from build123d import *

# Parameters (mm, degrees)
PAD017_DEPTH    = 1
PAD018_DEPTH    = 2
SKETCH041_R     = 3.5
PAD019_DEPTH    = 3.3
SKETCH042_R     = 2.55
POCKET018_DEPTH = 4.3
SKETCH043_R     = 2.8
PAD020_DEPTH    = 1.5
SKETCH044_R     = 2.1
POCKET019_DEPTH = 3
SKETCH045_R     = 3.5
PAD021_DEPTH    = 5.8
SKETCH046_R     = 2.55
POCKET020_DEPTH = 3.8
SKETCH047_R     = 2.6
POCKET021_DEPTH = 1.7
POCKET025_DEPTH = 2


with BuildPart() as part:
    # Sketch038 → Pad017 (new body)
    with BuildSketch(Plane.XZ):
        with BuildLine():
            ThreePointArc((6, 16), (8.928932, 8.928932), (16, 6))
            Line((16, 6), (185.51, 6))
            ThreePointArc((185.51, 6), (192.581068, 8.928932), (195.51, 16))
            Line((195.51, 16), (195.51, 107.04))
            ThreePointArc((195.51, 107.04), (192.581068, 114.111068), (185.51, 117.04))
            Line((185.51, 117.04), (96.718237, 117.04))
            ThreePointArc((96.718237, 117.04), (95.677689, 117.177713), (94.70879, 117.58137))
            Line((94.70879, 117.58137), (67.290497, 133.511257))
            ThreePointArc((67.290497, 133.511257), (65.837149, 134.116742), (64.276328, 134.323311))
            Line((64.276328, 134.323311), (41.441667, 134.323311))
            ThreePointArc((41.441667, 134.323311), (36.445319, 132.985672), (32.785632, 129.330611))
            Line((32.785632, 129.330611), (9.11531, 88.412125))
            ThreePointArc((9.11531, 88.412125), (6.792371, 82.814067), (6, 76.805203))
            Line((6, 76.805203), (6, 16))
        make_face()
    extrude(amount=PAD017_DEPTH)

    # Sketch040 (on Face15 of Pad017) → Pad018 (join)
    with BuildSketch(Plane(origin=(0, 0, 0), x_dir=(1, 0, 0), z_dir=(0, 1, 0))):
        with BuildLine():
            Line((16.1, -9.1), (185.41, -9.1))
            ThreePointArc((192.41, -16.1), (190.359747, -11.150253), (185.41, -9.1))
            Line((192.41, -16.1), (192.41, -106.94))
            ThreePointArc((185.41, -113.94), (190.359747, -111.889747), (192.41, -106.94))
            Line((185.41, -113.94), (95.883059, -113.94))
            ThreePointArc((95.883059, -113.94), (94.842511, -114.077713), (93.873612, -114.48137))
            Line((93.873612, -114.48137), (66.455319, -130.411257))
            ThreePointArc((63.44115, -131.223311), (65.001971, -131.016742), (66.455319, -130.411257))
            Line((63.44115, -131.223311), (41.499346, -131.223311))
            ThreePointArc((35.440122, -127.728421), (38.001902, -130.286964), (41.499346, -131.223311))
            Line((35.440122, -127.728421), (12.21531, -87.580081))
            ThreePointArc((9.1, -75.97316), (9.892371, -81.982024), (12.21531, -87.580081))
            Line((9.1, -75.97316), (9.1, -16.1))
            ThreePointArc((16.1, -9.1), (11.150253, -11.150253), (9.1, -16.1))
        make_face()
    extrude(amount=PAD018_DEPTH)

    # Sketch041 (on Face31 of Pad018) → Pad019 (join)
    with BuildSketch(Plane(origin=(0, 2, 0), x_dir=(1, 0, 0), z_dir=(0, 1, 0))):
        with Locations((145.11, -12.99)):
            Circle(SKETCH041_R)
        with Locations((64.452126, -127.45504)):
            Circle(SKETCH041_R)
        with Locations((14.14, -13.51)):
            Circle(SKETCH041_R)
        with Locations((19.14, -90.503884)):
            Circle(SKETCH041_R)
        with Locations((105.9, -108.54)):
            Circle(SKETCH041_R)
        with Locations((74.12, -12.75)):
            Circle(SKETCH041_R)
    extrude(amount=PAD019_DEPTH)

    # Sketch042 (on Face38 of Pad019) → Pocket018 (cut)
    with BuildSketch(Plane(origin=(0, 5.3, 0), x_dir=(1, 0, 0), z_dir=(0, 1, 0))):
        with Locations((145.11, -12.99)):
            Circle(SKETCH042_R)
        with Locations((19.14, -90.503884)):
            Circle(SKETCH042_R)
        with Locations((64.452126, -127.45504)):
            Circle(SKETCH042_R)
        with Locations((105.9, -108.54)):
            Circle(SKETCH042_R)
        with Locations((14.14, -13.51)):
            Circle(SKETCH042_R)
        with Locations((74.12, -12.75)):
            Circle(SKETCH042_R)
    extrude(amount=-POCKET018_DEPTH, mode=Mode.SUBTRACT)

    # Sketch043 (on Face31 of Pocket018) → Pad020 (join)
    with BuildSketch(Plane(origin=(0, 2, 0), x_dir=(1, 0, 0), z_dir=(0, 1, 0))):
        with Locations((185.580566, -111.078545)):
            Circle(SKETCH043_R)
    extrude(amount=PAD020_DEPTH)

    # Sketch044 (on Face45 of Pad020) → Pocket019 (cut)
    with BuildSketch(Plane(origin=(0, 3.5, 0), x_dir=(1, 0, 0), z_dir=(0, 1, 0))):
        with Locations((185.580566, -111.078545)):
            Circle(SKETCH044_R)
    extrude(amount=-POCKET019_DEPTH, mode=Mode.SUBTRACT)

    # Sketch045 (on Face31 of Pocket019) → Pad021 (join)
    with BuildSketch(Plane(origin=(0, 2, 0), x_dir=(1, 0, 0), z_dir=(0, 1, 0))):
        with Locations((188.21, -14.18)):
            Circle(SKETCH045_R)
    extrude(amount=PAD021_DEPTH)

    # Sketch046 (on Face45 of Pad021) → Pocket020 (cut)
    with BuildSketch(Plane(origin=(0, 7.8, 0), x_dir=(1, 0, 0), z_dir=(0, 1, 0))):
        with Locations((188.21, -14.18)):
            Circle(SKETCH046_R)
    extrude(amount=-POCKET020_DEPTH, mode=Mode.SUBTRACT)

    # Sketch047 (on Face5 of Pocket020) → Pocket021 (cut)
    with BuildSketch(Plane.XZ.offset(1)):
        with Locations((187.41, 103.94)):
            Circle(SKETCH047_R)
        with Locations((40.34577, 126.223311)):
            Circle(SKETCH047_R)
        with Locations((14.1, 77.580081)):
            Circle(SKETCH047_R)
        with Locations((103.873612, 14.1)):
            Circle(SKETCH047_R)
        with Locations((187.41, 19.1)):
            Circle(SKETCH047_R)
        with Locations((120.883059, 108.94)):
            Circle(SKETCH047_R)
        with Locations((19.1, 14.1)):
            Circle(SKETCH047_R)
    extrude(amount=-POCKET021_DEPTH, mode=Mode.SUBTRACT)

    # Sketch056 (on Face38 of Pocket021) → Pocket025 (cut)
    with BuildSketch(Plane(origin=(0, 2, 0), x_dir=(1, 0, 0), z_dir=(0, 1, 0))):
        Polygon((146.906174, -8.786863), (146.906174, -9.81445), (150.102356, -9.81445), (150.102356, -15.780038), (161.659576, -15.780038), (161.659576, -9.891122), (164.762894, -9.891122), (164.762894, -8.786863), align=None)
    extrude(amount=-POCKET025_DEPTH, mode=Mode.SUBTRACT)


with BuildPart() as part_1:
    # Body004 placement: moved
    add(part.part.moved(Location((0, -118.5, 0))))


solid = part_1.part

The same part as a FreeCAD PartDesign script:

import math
import FreeCAD as App
import Part
import Sketcher
from FreeCAD import Vector

doc = App.newDocument("Part")
body = doc.addObject("PartDesign::Body", "Body")

sketch1 = body.newObject("Sketcher::SketchObject", "Sketch")
sketch1.AttachmentSupport = (doc.getObject("XZ_Plane"), [""])
sketch1.MapMode = "FlatFace"
sketch1.addGeometry(Part.ArcOfCircle(Part.Circle(Vector(16, 16, 0), Vector(0, 0, 1), 10), math.radians(180), math.radians(270)), False)
sketch1.addGeometry(Part.LineSegment(Vector(16, 6, 0), Vector(185.5, 6, 0)), False)
sketch1.addGeometry(Part.ArcOfCircle(Part.Circle(Vector(185.5, 16, 0), Vector(0, 0, 1), 10), math.radians(-90), math.radians(0)), False)
sketch1.addGeometry(Part.LineSegment(Vector(195.5, 16, 0), Vector(195.5, 107, 0)), False)
sketch1.addGeometry(Part.ArcOfCircle(Part.Circle(Vector(185.5, 107, 0), Vector(0, 0, 1), 10), math.radians(0), math.radians(90)), False)
sketch1.addGeometry(Part.LineSegment(Vector(185.5, 117, 0), Vector(96.7, 117, 0)), False)
sketch1.addGeometry(Part.ArcOfCircle(Part.Circle(Vector(96.7, 121, 0), Vector(0, 0, 1), 4), math.radians(-120), math.radians(-90)), False)
sketch1.addGeometry(Part.LineSegment(Vector(94.7, 117.6, 0), Vector(67.3, 133.5, 0)), False)
sketch1.addGeometry(Part.ArcOfCircle(Part.Circle(Vector(64.3, 128.3, 0), Vector(0, 0, 1), 6), math.radians(60), math.radians(90)), False)
sketch1.addGeometry(Part.LineSegment(Vector(64.3, 134.3, 0), Vector(41.4, 134.3, 0)), False)
sketch1.addGeometry(Part.ArcOfCircle(Part.Circle(Vector(41.4, 124.3, 0), Vector(0, 0, 1), 10), math.radians(90), math.radians(150)), False)
sketch1.addGeometry(Part.LineSegment(Vector(32.8, 129.3, 0), Vector(9.1, 88.4, 0)), False)
sketch1.addGeometry(Part.ArcOfCircle(Part.Circle(Vector(29.2, 76.8, 0), Vector(0, 0, 1), 23.2), math.radians(150), math.radians(180)), False)
sketch1.addGeometry(Part.LineSegment(Vector(6, 76.8, 0), Vector(6, 16, 0)), False)
sketch1.addConstraint(Sketcher.Constraint("Tangent", 0, 2, 1, 1))
sketch1.addConstraint(Sketcher.Constraint("Tangent", 1, 2, 2, 1))
sketch1.addConstraint(Sketcher.Constraint("Tangent", 2, 2, 3, 1))
sketch1.addConstraint(Sketcher.Constraint("Tangent", 3, 2, 4, 1))
sketch1.addConstraint(Sketcher.Constraint("Tangent", 4, 2, 5, 1))
sketch1.addConstraint(Sketcher.Constraint("Tangent", 5, 2, 6, 2))
sketch1.addConstraint(Sketcher.Constraint("Tangent", 6, 1, 7, 1))
sketch1.addConstraint(Sketcher.Constraint("Tangent", 7, 2, 8, 1))
sketch1.addConstraint(Sketcher.Constraint("Tangent", 8, 2, 9, 1))
sketch1.addConstraint(Sketcher.Constraint("Tangent", 9, 2, 10, 1))
sketch1.addConstraint(Sketcher.Constraint("Tangent", 10, 2, 11, 1))
sketch1.addConstraint(Sketcher.Constraint("Tangent", 11, 2, 12, 1))
sketch1.addConstraint(Sketcher.Constraint("Tangent", 12, 2, 13, 1))
sketch1.addConstraint(Sketcher.Constraint("Tangent", 13, 2, 0, 1))
sketch1.addConstraint(Sketcher.Constraint("Horizontal", 1))
sketch1.addConstraint(Sketcher.Constraint("Vertical", 3))
sketch1.addConstraint(Sketcher.Constraint("Horizontal", 5))
sketch1.addConstraint(Sketcher.Constraint("Horizontal", 9))
sketch1.addConstraint(Sketcher.Constraint("Vertical", 13))
sketch1.addConstraint(Sketcher.Constraint("Equal", 0, 2))
sketch1.addConstraint(Sketcher.Constraint("Equal", 2, 4))
sketch1.addConstraint(Sketcher.Constraint("Radius", 0, 9.999999))
sketch1.addConstraint(Sketcher.Constraint("Radius", 10, 10.000002))
sketch1.addConstraint(Sketcher.Constraint("DistanceX", -1, 1, 0, 3, 15.999999))
sketch1.addConstraint(Sketcher.Constraint("DistanceY", -1, 1, 0, 3, 15.999999))
sketch1.addConstraint(Sketcher.Constraint("DistanceX", 1, 1, 1, 2, 169.51))
sketch1.addConstraint(Sketcher.Constraint("DistanceY", 3, 1, 3, 2, 91.04))
sketch1.addConstraint(Sketcher.Constraint("Distance", 7, 31.71))
sketch1.addConstraint(Sketcher.Constraint("Radius", 12, 23.18002))
sketch1.addConstraint(Sketcher.Constraint("Radius", 6, 3.999994))
sketch1.addConstraint(Sketcher.Constraint("Radius", 8, 5.999987))
sketch1.addConstraint(Sketcher.Constraint("DistanceX", 9, 2, 9, 1, 22.834661))
sketch1.addConstraint(Sketcher.Constraint("DistanceY", -1, 1, 12, 3, 76.805199))
sketch1.addConstraint(Sketcher.Constraint("DistanceY", 10, 2, 9, 2, 4.9927))
sketch1.addConstraint(Sketcher.Constraint("DistanceY", 11, 2, 8, 3, 39.911199))
pad1 = body.newObject("PartDesign::Pad", "Pad")
pad1.Profile = sketch1
pad1.Length = 1

sketch2 = body.newObject("Sketcher::SketchObject", "Sketch001")
sketch2.AttachmentSupport = (doc.getObject("XZ_Plane"), [""])
sketch2.MapMode = "FlatFace"
sketch2.addGeometry(Part.LineSegment(Vector(185.41, 9.1, 0), Vector(16.1, 9.1, 0)), False)
sketch2.addGeometry(Part.ArcOfCircle(Part.Circle(Vector(16.100002, 16.100002, 0), Vector(0, 0, 1), 7.000002), math.radians(-179.999987), math.radians(-90.000013)), False)
sketch2.addGeometry(Part.LineSegment(Vector(9.1, 16.1, 0), Vector(9.1, 75.97316, 0)), False)
sketch2.addGeometry(Part.ArcOfCircle(Part.Circle(Vector(32.280013, 75.973157, 0), Vector(0, 0, 1), 23.180013), math.radians(149.951701), math.radians(179.999991)), False)
sketch2.addGeometry(Part.LineSegment(Vector(12.21531, 87.580081, 0), Vector(35.440122, 127.728421, 0)), False)
sketch2.addGeometry(Part.ArcOfCircle(Part.Circle(Vector(41.499345, 124.223314, 0), Vector(0, 0, 1), 6.999997), math.radians(89.99999), math.radians(149.951707)), False)
sketch2.addGeometry(Part.LineSegment(Vector(41.499346, 131.223311, 0), Vector(63.44115, 131.223311, 0)), False)
sketch2.addGeometry(Part.ArcOfCircle(Part.Circle(Vector(63.441153, 125.223324, 0), Vector(0, 0, 1), 5.999987), math.radians(59.843604), math.radians(90.000032)), False)
sketch2.addGeometry(Part.LineSegment(Vector(66.455319, 130.411257, 0), Vector(93.873612, 114.48137, 0)), False)
sketch2.addGeometry(Part.ArcOfCircle(Part.Circle(Vector(95.883058, 117.939994, 0), Vector(0, 0, 1), 3.999994), math.radians(-120.156403), math.radians(-89.999982)), False)
sketch2.addGeometry(Part.LineSegment(Vector(95.883059, 113.94, 0), Vector(185.41, 113.94, 0)), False)
sketch2.addGeometry(Part.ArcOfCircle(Part.Circle(Vector(185.409998, 106.939998, 0), Vector(0, 0, 1), 7.000002), math.radians(0.000013), math.radians(89.999987)), False)
sketch2.addGeometry(Part.LineSegment(Vector(192.41, 106.94, 0), Vector(192.41, 16.1, 0)), False)
sketch2.addGeometry(Part.ArcOfCircle(Part.Circle(Vector(185.409998, 16.100002, 0), Vector(0, 0, 1), 7.000002), math.radians(-89.999987), math.radians(-0.000013)), False)
sketch2.addConstraint(Sketcher.Constraint("Coincident", 0, 2, 1, 2))
sketch2.addConstraint(Sketcher.Constraint("Coincident", 1, 1, 2, 1))
sketch2.addConstraint(Sketcher.Constraint("Coincident", 2, 2, 3, 2))
sketch2.addConstraint(Sketcher.Constraint("Coincident", 3, 1, 4, 1))
sketch2.addConstraint(Sketcher.Constraint("Coincident", 4, 2, 5, 2))
sketch2.addConstraint(Sketcher.Constraint("Coincident", 5, 1, 6, 1))
sketch2.addConstraint(Sketcher.Constraint("Coincident", 6, 2, 7, 2))
sketch2.addConstraint(Sketcher.Constraint("Coincident", 7, 1, 8, 1))
sketch2.addConstraint(Sketcher.Constraint("Coincident", 8, 2, 9, 1))
sketch2.addConstraint(Sketcher.Constraint("Coincident", 9, 2, 10, 1))
sketch2.addConstraint(Sketcher.Constraint("Coincident", 10, 2, 11, 2))
sketch2.addConstraint(Sketcher.Constraint("Coincident", 11, 1, 12, 1))
sketch2.addConstraint(Sketcher.Constraint("Coincident", 12, 2, 13, 2))
sketch2.addConstraint(Sketcher.Constraint("Coincident", 13, 1, 0, 1))
sketch2.addConstraint(Sketcher.Constraint("Horizontal", 0))
sketch2.addConstraint(Sketcher.Constraint("Vertical", 2))
sketch2.addConstraint(Sketcher.Constraint("Horizontal", 6))
sketch2.addConstraint(Sketcher.Constraint("Horizontal", 10))
sketch2.addConstraint(Sketcher.Constraint("Vertical", 12))
sketch2.addConstraint(Sketcher.Constraint("Radius", 1, 7.000002))
sketch2.addConstraint(Sketcher.Constraint("Radius", 11, 7.000002))
sketch2.addConstraint(Sketcher.Constraint("Radius", 13, 7.000002))
sketch2.addConstraint(Sketcher.Constraint("DistanceX", 1, 1, 0, 2, 7.0))
sketch2.addConstraint(Sketcher.Constraint("DistanceY", 0, 2, 1, 1, 7.0))
sketch2.addConstraint(Sketcher.Constraint("DistanceX", 10, 2, 11, 1, 7.0))
sketch2.addConstraint(Sketcher.Constraint("DistanceY", 11, 1, 10, 2, 7.0))
sketch2.addConstraint(Sketcher.Constraint("DistanceX", 13, 1, 12, 2, 7.0))
sketch2.addConstraint(Sketcher.Constraint("DistanceY", 13, 1, 12, 2, 7.0))
sketch2.addConstraint(Sketcher.Constraint("DistanceX", 0, 2, 0, 1, 169.31))
sketch2.addConstraint(Sketcher.Constraint("DistanceY", 12, 2, 12, 1, 90.84))
sketch2.addConstraint(Sketcher.Constraint("DistanceX", -1, 1, 1, 3, 16.100002))
sketch2.addConstraint(Sketcher.Constraint("DistanceY", -1, 1, 1, 3, 16.100002))
sketch2.addConstraint(Sketcher.Constraint("Distance", 8, 31.71))
sketch2.addConstraint(Sketcher.Constraint("Radius", 3, 23.180013))
sketch2.addConstraint(Sketcher.Constraint("Radius", 5, 6.999997))
sketch2.addConstraint(Sketcher.Constraint("Radius", 7, 5.999987))
sketch2.addConstraint(Sketcher.Constraint("Radius", 9, 3.999994))
sketch2.addConstraint(Sketcher.Constraint("DistanceX", 10, 1, 10, 2, 89.526941))
sketch2.addConstraint(Sketcher.Constraint("DistanceY", 2, 1, 2, 2, 59.87316))
sketch2.addConstraint(Sketcher.Constraint("DistanceX", 6, 1, 6, 2, 21.941804))
sketch2.addConstraint(Sketcher.Constraint("DistanceX", -1, 1, 3, 1, 12.21531))
sketch2.addConstraint(Sketcher.Constraint("DistanceY", -1, 1, 3, 1, 87.580081))
sketch2.addConstraint(Sketcher.Constraint("DistanceY", -1, 1, 4, 2, 127.728421))
sketch2.addConstraint(Sketcher.Constraint("DistanceY", -1, 1, 5, 1, 131.223311))
sketch2.addConstraint(Sketcher.Constraint("DistanceX", -1, 1, 6, 2, 63.44115))
sketch2.addConstraint(Sketcher.Constraint("DistanceX", -1, 1, 7, 1, 66.455319))
sketch2.addConstraint(Sketcher.Constraint("DistanceX", -1, 1, 8, 2, 93.873612))
sketch2.addConstraint(Sketcher.Constraint("DistanceY", -1, 1, 8, 2, 114.48137))
sketch2.addConstraint(Sketcher.Constraint("DistanceX", 3, 3, 5, 3, 9.219332))
pad2 = body.newObject("PartDesign::Pad", "Pad001")
pad2.Profile = sketch2
pad2.Length = 2
pad2.Reversed = True

sketch3 = body.newObject("Sketcher::SketchObject", "Sketch002")
sketch3.AttachmentSupport = (doc.getObject("XZ_Plane"), [""])
sketch3.MapMode = "FlatFace"
sketch3.AttachmentOffset = App.Placement(Vector(0, 0, -2), App.Rotation())
sketch3.addGeometry(Part.Circle(Vector(145.1, 13, 0), Vector(0, 0, 1), 3.5), False)
sketch3.addGeometry(Part.Circle(Vector(64.5, 127.5, 0), Vector(0, 0, 1), 3.5), False)
sketch3.addGeometry(Part.Circle(Vector(14.1, 13.5, 0), Vector(0, 0, 1), 3.5), False)
sketch3.addGeometry(Part.Circle(Vector(19.1, 90.5, 0), Vector(0, 0, 1), 3.5), False)
sketch3.addGeometry(Part.Circle(Vector(105.9, 108.5, 0), Vector(0, 0, 1), 3.5), False)
sketch3.addGeometry(Part.Circle(Vector(74.1, 12.8, 0), Vector(0, 0, 1), 3.5), False)
sketch3.addConstraint(Sketcher.Constraint("Equal", 0, 1))
sketch3.addConstraint(Sketcher.Constraint("Equal", 1, 2))
sketch3.addConstraint(Sketcher.Constraint("Equal", 2, 3))
sketch3.addConstraint(Sketcher.Constraint("Equal", 3, 4))
sketch3.addConstraint(Sketcher.Constraint("Equal", 4, 5))
sketch3.addConstraint(Sketcher.Constraint("Diameter", 0, 7.0))
sketch3.addConstraint(Sketcher.Constraint("DistanceX", 2, 3, 3, 3, 5.0))
sketch3.addConstraint(Sketcher.Constraint("DistanceX", -1, 1, 4, 3, 105.9))
sketch3.addConstraint(Sketcher.Constraint("DistanceX", -1, 1, 0, 3, 145.11))
sketch3.addConstraint(Sketcher.Constraint("DistanceY", -1, 1, 0, 3, 12.99))
sketch3.addConstraint(Sketcher.Constraint("DistanceX", -1, 1, 2, 3, 14.14))
sketch3.addConstraint(Sketcher.Constraint("DistanceY", -1, 1, 2, 3, 13.51))
sketch3.addConstraint(Sketcher.Constraint("DistanceY", -1, 1, 4, 3, 108.54))
sketch3.addConstraint(Sketcher.Constraint("DistanceX", -1, 1, 5, 3, 74.12))
sketch3.addConstraint(Sketcher.Constraint("DistanceY", -1, 1, 5, 3, 12.75))
sketch3.addConstraint(Sketcher.Constraint("DistanceY", -1, 1, 1, 3, 127.45504))
sketch3.addConstraint(Sketcher.Constraint("DistanceX", -1, 1, 1, 3, 64.452126))
sketch3.addConstraint(Sketcher.Constraint("DistanceY", -1, 1, 3, 3, 90.503884))
pad3 = body.newObject("PartDesign::Pad", "Pad002")
pad3.Profile = sketch3
pad3.Length = 3.3
pad3.Reversed = True

sketch4 = body.newObject("Sketcher::SketchObject", "Sketch003")
sketch4.AttachmentSupport = (doc.getObject("XZ_Plane"), [""])
sketch4.MapMode = "FlatFace"
sketch4.AttachmentOffset = App.Placement(Vector(0, 0, -5.3), App.Rotation())
sketch4.addGeometry(Part.Circle(Vector(145.1, 13, 0), Vector(0, 0, 1), 2.5), False)
sketch4.addGeometry(Part.Circle(Vector(19.1, 90.5, 0), Vector(0, 0, 1), 2.5), False)
sketch4.addGeometry(Part.Circle(Vector(64.5, 127.5, 0), Vector(0, 0, 1), 2.5), False)
sketch4.addGeometry(Part.Circle(Vector(105.9, 108.5, 0), Vector(0, 0, 1), 2.5), False)
sketch4.addGeometry(Part.Circle(Vector(14.1, 13.5, 0), Vector(0, 0, 1), 2.5), False)
sketch4.addGeometry(Part.Circle(Vector(74.1, 12.8, 0), Vector(0, 0, 1), 2.5), False)
sketch4.addConstraint(Sketcher.Constraint("Equal", 0, 1))
sketch4.addConstraint(Sketcher.Constraint("Equal", 1, 2))
sketch4.addConstraint(Sketcher.Constraint("Equal", 2, 3))
sketch4.addConstraint(Sketcher.Constraint("Equal", 3, 4))
sketch4.addConstraint(Sketcher.Constraint("Equal", 4, 5))
sketch4.addConstraint(Sketcher.Constraint("Diameter", 0, 5.1))
sketch4.addConstraint(Sketcher.Constraint("DistanceX", 4, 3, 1, 3, 5.0))
sketch4.addConstraint(Sketcher.Constraint("DistanceX", -1, 1, 3, 3, 105.9))
sketch4.addConstraint(Sketcher.Constraint("DistanceX", -1, 1, 0, 3, 145.11))
sketch4.addConstraint(Sketcher.Constraint("DistanceY", -1, 1, 0, 3, 12.99))
sketch4.addConstraint(Sketcher.Constraint("DistanceX", -1, 1, 1, 3, 19.14))
sketch4.addConstraint(Sketcher.Constraint("DistanceY", -1, 1, 3, 3, 108.54))
sketch4.addConstraint(Sketcher.Constraint("DistanceY", -1, 1, 4, 3, 13.51))
sketch4.addConstraint(Sketcher.Constraint("DistanceX", -1, 1, 5, 3, 74.12))
sketch4.addConstraint(Sketcher.Constraint("DistanceY", -1, 1, 5, 3, 12.75))
sketch4.addConstraint(Sketcher.Constraint("DistanceY", -1, 1, 2, 3, 127.45504))
sketch4.addConstraint(Sketcher.Constraint("DistanceY", -1, 1, 1, 3, 90.503884))
sketch4.addConstraint(Sketcher.Constraint("DistanceX", -1, 1, 2, 3, 64.452126))
pocket1 = body.newObject("PartDesign::Pocket", "Pocket")
pocket1.Profile = sketch4
pocket1.Length = 4.3
pocket1.Reversed = True

sketch5 = body.newObject("Sketcher::SketchObject", "Sketch004")
sketch5.AttachmentSupport = (doc.getObject("XZ_Plane"), [""])
sketch5.MapMode = "FlatFace"
sketch5.AttachmentOffset = App.Placement(Vector(0, 0, -2), App.Rotation())
sketch5.addGeometry(Part.Circle(Vector(185.6, 111.1, 0), Vector(0, 0, 1), 2.8), False)
sketch5.addConstraint(Sketcher.Constraint("Diameter", 0, 5.6))
sketch5.addConstraint(Sketcher.Constraint("DistanceX", -1, 1, 0, 3, 185.580566))
sketch5.addConstraint(Sketcher.Constraint("DistanceY", -1, 1, 0, 3, 111.078545))
pad4 = body.newObject("PartDesign::Pad", "Pad003")
pad4.Profile = sketch5
pad4.Length = 1.5
pad4.Reversed = True

sketch6 = body.newObject("Sketcher::SketchObject", "Sketch005")
sketch6.AttachmentSupport = (doc.getObject("XZ_Plane"), [""])
sketch6.MapMode = "FlatFace"
sketch6.AttachmentOffset = App.Placement(Vector(0, 0, -3.5), App.Rotation())
sketch6.addGeometry(Part.Circle(Vector(185.6, 111.1, 0), Vector(0, 0, 1), 2.1), False)
sketch6.addConstraint(Sketcher.Constraint("Diameter", 0, 4.2))
sketch6.addConstraint(Sketcher.Constraint("DistanceX", -1, 1, 0, 3, 185.580566))
sketch6.addConstraint(Sketcher.Constraint("DistanceY", -1, 1, 0, 3, 111.078545))
pocket2 = body.newObject("PartDesign::Pocket", "Pocket001")
pocket2.Profile = sketch6
pocket2.Length = 3
pocket2.Reversed = True

sketch7 = body.newObject("Sketcher::SketchObject", "Sketch006")
sketch7.AttachmentSupport = (doc.getObject("XZ_Plane"), [""])
sketch7.MapMode = "FlatFace"
sketch7.AttachmentOffset = App.Placement(Vector(0, 0, -2), App.Rotation())
sketch7.addGeometry(Part.Circle(Vector(188.2, 14.2, 0), Vector(0, 0, 1), 3.5), False)
sketch7.addConstraint(Sketcher.Constraint("Diameter", 0, 7.0))
sketch7.addConstraint(Sketcher.Constraint("DistanceX", -1, 1, 0, 3, 188.21))
sketch7.addConstraint(Sketcher.Constraint("DistanceY", -1, 1, 0, 3, 14.18))
pad5 = body.newObject("PartDesign::Pad", "Pad004")
pad5.Profile = sketch7
pad5.Length = 5.8
pad5.Reversed = True

sketch8 = body.newObject("Sketcher::SketchObject", "Sketch007")
sketch8.AttachmentSupport = (doc.getObject("XZ_Plane"), [""])
sketch8.MapMode = "FlatFace"
sketch8.AttachmentOffset = App.Placement(Vector(0, 0, -7.8), App.Rotation())
sketch8.addGeometry(Part.Circle(Vector(188.2, 14.2, 0), Vector(0, 0, 1), 2.5), False)
sketch8.addConstraint(Sketcher.Constraint("Diameter", 0, 5.1))
sketch8.addConstraint(Sketcher.Constraint("DistanceX", -1, 1, 0, 3, 188.21))
sketch8.addConstraint(Sketcher.Constraint("DistanceY", -1, 1, 0, 3, 14.18))
pocket3 = body.newObject("PartDesign::Pocket", "Pocket002")
pocket3.Profile = sketch8
pocket3.Length = 3.8
pocket3.Reversed = True

sketch9 = body.newObject("Sketcher::SketchObject", "Sketch008")
sketch9.AttachmentSupport = (doc.getObject("XZ_Plane"), [""])
sketch9.MapMode = "FlatFace"
sketch9.AttachmentOffset = App.Placement(Vector(0, 0, 1), App.Rotation())
sketch9.addGeometry(Part.Circle(Vector(187.4, 103.9, 0), Vector(0, 0, 1), 2.6), False)
sketch9.addGeometry(Part.Circle(Vector(40.3, 126.2, 0), Vector(0, 0, 1), 2.6), False)
sketch9.addGeometry(Part.Circle(Vector(14.1, 77.6, 0), Vector(0, 0, 1), 2.6), False)
sketch9.addGeometry(Part.Circle(Vector(103.9, 14.1, 0), Vector(0, 0, 1), 2.6), False)
sketch9.addGeometry(Part.Circle(Vector(187.4, 19.1, 0), Vector(0, 0, 1), 2.6), False)
sketch9.addGeometry(Part.Circle(Vector(120.9, 108.9, 0), Vector(0, 0, 1), 2.6), False)
sketch9.addGeometry(Part.Circle(Vector(19.1, 14.1, 0), Vector(0, 0, 1), 2.6), False)
sketch9.addConstraint(Sketcher.Constraint("Equal", 0, 1))
sketch9.addConstraint(Sketcher.Constraint("Equal", 1, 2))
sketch9.addConstraint(Sketcher.Constraint("Equal", 2, 3))
sketch9.addConstraint(Sketcher.Constraint("Equal", 3, 4))
sketch9.addConstraint(Sketcher.Constraint("Equal", 4, 5))
sketch9.addConstraint(Sketcher.Constraint("Equal", 5, 6))
sketch9.addConstraint(Sketcher.Constraint("Horizontal", 3, 3, 6, 3))
sketch9.addConstraint(Sketcher.Constraint("Vertical", 0, 3, 4, 3))
sketch9.addConstraint(Sketcher.Constraint("Diameter", 0, 5.2))
sketch9.addConstraint(Sketcher.Constraint("DistanceY", 3, 3, 4, 3, 5.0))
sketch9.addConstraint(Sketcher.Constraint("DistanceY", 0, 3, 5, 3, 5.0))
sketch9.addConstraint(Sketcher.Constraint("DistanceX", 2, 3, 6, 3, 5.0))
sketch9.addConstraint(Sketcher.Constraint("DistanceX", -1, 1, 2, 3, 14.1))
sketch9.addConstraint(Sketcher.Constraint("DistanceY", -1, 1, 3, 3, 14.1))
sketch9.addConstraint(Sketcher.Constraint("DistanceX", -1, 1, 0, 3, 187.41))
sketch9.addConstraint(Sketcher.Constraint("DistanceY", -1, 1, 0, 3, 103.94))
sketch9.addConstraint(Sketcher.Constraint("DistanceX", -1, 1, 1, 3, 40.34577))
sketch9.addConstraint(Sketcher.Constraint("DistanceY", -1, 1, 1, 3, 126.223311))
sketch9.addConstraint(Sketcher.Constraint("DistanceY", -1, 1, 2, 3, 77.580081))
sketch9.addConstraint(Sketcher.Constraint("DistanceX", -1, 1, 3, 3, 103.873612))
sketch9.addConstraint(Sketcher.Constraint("DistanceX", -1, 1, 5, 3, 120.883059))
pocket4 = body.newObject("PartDesign::Pocket", "Pocket003")
pocket4.Profile = sketch9
pocket4.Length = 1.7

sketch10 = body.newObject("Sketcher::SketchObject", "Sketch009")
sketch10.AttachmentSupport = (doc.getObject("XZ_Plane"), [""])
sketch10.MapMode = "FlatFace"
sketch10.AttachmentOffset = App.Placement(Vector(0, 0, -2), App.Rotation())
sketch10.addGeometry(Part.LineSegment(Vector(146.9, 8.8, 0), Vector(146.9, 9.8, 0)), False)
sketch10.addGeometry(Part.LineSegment(Vector(146.9, 9.8, 0), Vector(150.1, 9.8, 0)), False)
sketch10.addGeometry(Part.LineSegment(Vector(150.1, 9.8, 0), Vector(150.1, 15.8, 0)), False)
sketch10.addGeometry(Part.LineSegment(Vector(150.1, 15.8, 0), Vector(161.7, 15.8, 0)), False)
sketch10.addGeometry(Part.LineSegment(Vector(161.7, 15.8, 0), Vector(161.7, 9.9, 0)), False)
sketch10.addGeometry(Part.LineSegment(Vector(161.7, 9.9, 0), Vector(164.8, 9.9, 0)), False)
sketch10.addGeometry(Part.LineSegment(Vector(164.8, 9.9, 0), Vector(164.8, 8.8, 0)), False)
sketch10.addGeometry(Part.LineSegment(Vector(164.8, 8.8, 0), Vector(146.9, 8.8, 0)), False)
sketch10.addConstraint(Sketcher.Constraint("Coincident", 0, 2, 1, 1))
sketch10.addConstraint(Sketcher.Constraint("Coincident", 1, 2, 2, 1))
sketch10.addConstraint(Sketcher.Constraint("Coincident", 2, 2, 3, 1))
sketch10.addConstraint(Sketcher.Constraint("Coincident", 3, 2, 4, 1))
sketch10.addConstraint(Sketcher.Constraint("Coincident", 4, 2, 5, 1))
sketch10.addConstraint(Sketcher.Constraint("Coincident", 5, 2, 6, 1))
sketch10.addConstraint(Sketcher.Constraint("Coincident", 6, 2, 7, 1))
sketch10.addConstraint(Sketcher.Constraint("Coincident", 7, 2, 0, 1))
sketch10.addConstraint(Sketcher.Constraint("Vertical", 0))
sketch10.addConstraint(Sketcher.Constraint("Horizontal", 1))
sketch10.addConstraint(Sketcher.Constraint("Vertical", 2))
sketch10.addConstraint(Sketcher.Constraint("Horizontal", 3))
sketch10.addConstraint(Sketcher.Constraint("Vertical", 4))
sketch10.addConstraint(Sketcher.Constraint("Horizontal", 5))
sketch10.addConstraint(Sketcher.Constraint("Vertical", 6))
sketch10.addConstraint(Sketcher.Constraint("Horizontal", 7))
sketch10.addConstraint(Sketcher.Constraint("DistanceX", 1, 1, 1, 2, 3.196182))
sketch10.addConstraint(Sketcher.Constraint("DistanceX", 3, 1, 3, 2, 11.55722))
sketch10.addConstraint(Sketcher.Constraint("DistanceX", 5, 1, 5, 2, 3.103318))
sketch10.addConstraint(Sketcher.Constraint("DistanceY", 6, 2, 6, 1, 1.104259))
sketch10.addConstraint(Sketcher.Constraint("DistanceY", 0, 1, 0, 2, 1.027587))
sketch10.addConstraint(Sketcher.Constraint("DistanceY", 2, 1, 2, 2, 5.965588))
sketch10.addConstraint(Sketcher.Constraint("DistanceY", -1, 1, 0, 2, 9.81445))
sketch10.addConstraint(Sketcher.Constraint("DistanceX", -1, 1, 0, 2, 146.906174))
pocket5 = body.newObject("PartDesign::Pocket", "Pocket004")
pocket5.Profile = sketch10
pocket5.Length = 2
pocket5.Reversed = True
body2 = doc.addObject("PartDesign::Body", "Body001")
doc.recompute()

body.Placement = App.Placement(Vector(0, -118.5, 0), App.Rotation(Vector(0, 0, 1), 0))
boolean = body2.newObject("PartDesign::Boolean", "Boolean")
boolean.Type = "Fuse"
boolean.addObjects([body])

doc.recompute()
